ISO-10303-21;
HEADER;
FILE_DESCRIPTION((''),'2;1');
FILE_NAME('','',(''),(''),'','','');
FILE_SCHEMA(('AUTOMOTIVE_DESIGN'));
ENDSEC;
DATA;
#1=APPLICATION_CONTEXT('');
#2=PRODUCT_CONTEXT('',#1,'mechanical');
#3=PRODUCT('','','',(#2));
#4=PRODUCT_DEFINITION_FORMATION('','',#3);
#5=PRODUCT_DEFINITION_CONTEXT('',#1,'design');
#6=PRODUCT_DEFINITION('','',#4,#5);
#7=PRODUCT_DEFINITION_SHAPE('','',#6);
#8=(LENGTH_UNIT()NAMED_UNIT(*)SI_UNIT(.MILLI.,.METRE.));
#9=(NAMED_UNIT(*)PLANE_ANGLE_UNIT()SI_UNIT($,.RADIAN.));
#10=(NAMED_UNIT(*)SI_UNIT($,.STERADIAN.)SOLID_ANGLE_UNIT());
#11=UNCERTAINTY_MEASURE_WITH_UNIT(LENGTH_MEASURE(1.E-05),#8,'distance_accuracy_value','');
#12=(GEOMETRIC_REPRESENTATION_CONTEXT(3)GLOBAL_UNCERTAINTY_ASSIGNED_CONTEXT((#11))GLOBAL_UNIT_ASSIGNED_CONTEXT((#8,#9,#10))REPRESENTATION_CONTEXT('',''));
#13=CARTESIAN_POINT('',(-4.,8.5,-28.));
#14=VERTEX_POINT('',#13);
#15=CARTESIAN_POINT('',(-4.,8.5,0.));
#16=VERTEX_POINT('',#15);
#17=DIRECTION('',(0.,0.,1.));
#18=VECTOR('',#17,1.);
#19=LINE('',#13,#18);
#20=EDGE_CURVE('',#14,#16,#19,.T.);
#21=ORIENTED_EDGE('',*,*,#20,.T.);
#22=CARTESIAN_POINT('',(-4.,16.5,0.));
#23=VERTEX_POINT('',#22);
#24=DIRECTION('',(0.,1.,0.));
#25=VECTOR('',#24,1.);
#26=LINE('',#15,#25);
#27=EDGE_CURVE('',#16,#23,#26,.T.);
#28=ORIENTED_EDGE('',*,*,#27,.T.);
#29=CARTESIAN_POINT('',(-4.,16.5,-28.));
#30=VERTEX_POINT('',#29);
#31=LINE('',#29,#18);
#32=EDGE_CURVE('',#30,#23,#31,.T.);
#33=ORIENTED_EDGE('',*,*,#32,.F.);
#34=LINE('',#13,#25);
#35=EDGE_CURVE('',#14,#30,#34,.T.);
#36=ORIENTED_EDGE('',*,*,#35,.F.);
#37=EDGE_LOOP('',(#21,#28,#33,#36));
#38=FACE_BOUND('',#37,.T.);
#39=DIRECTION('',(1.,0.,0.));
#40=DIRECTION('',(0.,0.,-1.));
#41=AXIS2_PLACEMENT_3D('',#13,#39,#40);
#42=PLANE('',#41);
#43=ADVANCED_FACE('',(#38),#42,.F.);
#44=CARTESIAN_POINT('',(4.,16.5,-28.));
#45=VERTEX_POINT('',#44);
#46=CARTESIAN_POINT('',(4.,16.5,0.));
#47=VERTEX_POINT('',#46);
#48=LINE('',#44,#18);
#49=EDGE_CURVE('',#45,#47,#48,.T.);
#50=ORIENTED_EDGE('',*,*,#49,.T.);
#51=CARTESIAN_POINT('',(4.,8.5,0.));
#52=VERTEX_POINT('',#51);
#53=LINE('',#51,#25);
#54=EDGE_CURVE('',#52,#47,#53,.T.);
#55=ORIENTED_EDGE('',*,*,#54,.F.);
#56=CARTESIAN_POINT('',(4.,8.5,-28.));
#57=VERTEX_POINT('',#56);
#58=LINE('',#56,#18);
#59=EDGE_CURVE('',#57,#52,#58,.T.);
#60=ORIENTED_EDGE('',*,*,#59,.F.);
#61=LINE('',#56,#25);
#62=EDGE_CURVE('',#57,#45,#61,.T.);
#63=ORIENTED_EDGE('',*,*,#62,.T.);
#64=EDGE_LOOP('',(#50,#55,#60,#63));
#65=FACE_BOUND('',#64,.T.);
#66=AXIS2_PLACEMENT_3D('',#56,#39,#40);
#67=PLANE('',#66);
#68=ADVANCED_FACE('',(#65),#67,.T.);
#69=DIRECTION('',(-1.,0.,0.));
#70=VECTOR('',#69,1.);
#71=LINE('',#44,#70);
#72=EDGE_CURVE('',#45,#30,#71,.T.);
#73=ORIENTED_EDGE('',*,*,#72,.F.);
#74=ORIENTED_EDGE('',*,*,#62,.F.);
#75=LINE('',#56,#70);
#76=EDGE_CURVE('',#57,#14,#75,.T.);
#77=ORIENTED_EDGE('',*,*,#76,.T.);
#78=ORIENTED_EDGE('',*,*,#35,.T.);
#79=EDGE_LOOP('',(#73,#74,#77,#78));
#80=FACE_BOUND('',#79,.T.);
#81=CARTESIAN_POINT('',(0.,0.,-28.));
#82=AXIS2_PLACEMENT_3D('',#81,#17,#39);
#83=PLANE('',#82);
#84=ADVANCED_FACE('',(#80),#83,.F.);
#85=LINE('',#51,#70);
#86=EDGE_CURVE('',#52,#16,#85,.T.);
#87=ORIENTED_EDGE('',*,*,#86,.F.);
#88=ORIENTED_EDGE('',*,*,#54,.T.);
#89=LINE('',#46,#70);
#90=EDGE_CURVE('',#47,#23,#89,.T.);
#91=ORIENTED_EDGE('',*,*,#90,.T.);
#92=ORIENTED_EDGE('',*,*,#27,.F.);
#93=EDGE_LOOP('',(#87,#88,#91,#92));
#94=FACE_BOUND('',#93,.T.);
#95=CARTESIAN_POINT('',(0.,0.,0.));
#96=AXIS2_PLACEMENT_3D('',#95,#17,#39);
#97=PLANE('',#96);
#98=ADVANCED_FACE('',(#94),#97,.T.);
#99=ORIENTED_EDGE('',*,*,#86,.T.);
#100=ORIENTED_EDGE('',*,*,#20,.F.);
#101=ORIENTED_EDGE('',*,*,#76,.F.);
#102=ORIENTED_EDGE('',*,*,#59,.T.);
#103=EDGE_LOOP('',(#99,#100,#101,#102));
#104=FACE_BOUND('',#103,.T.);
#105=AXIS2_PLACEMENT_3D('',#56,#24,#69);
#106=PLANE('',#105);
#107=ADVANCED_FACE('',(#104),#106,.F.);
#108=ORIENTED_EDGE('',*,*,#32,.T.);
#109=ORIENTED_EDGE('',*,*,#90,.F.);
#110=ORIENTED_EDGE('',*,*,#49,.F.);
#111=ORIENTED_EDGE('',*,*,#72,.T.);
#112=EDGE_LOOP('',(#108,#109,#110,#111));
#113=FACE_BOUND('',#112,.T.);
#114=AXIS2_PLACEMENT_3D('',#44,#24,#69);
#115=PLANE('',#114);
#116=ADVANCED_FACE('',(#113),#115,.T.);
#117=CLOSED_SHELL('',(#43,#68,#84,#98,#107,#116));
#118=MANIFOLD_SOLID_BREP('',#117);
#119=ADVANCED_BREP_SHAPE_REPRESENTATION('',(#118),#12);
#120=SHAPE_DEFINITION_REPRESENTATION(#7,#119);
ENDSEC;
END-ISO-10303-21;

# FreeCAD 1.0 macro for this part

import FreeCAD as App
import Part
import Sketcher
Q = App.Units.Quantity


def add_polygon(sketch, points):
    """Adds a closed chain of lines whose ends are joined by coincident constraints."""
    first, n = sketch.GeometryCount, len(points)
    for a, b in zip(points, points[1:] + points[:1]):
        sketch.addGeometry(Part.LineSegment(App.Vector(*a, 0), App.Vector(*b, 0)), False)
    for i in range(n):
        sketch.addConstraint(Sketcher.Constraint("Coincident", first + i, 2, first + (i + 1) % n, 1))

doc = App.newDocument("Part")
params = doc.addObject("Spreadsheet::Sheet", "Params")
for row, (alias, value) in enumerate([
    ("sketch1_width", "8 mm"),
    ("pad1_length", "28 mm"),
], start=1):
    params.set(f"A{row}", alias)
    params.set(f"B{row}", "=" + value)
    params.setAlias(f"B{row}", alias)

body = doc.addObject("PartDesign::Body", "Body")

# Sketch on XY plane
sketch1 = body.newObject("Sketcher::SketchObject", "Sketch")
sketch1.AttachmentSupport = (doc.getObject("XY_Plane"), [""])
sketch1.MapMode = "FlatFace"
add_polygon(sketch1, [(-4, 16), (-4, 8), (4, 8), (4, 16)])  # lines 0-3
sketch1.addConstraint([
    Sketcher.Constraint("Vertical", 0),
    Sketcher.Constraint("Horizontal", 1),
    Sketcher.Constraint("Vertical", 2),
    Sketcher.Constraint("Horizontal", 3),
    Sketcher.Constraint("Equal", 3, 0),
    Sketcher.Constraint("DistanceX", 1, 1, 1, 2, Q("8 mm")),
    Sketcher.Constraint("DistanceX", 0, 2, -1, 1, Q("4 mm")),
    Sketcher.Constraint("DistanceY", -1, 1, 0, 2, Q("8.5 mm")),
])
sketch1.setExpression("Constraints[9]", "Params.sketch1_width")
pad1 = body.newObject("PartDesign::Pad", "Pad")
pad1.Profile = sketch1
pad1.setExpression("Length", "Params.pad1_length")
pad1.Reversed = True

doc.recompute()
